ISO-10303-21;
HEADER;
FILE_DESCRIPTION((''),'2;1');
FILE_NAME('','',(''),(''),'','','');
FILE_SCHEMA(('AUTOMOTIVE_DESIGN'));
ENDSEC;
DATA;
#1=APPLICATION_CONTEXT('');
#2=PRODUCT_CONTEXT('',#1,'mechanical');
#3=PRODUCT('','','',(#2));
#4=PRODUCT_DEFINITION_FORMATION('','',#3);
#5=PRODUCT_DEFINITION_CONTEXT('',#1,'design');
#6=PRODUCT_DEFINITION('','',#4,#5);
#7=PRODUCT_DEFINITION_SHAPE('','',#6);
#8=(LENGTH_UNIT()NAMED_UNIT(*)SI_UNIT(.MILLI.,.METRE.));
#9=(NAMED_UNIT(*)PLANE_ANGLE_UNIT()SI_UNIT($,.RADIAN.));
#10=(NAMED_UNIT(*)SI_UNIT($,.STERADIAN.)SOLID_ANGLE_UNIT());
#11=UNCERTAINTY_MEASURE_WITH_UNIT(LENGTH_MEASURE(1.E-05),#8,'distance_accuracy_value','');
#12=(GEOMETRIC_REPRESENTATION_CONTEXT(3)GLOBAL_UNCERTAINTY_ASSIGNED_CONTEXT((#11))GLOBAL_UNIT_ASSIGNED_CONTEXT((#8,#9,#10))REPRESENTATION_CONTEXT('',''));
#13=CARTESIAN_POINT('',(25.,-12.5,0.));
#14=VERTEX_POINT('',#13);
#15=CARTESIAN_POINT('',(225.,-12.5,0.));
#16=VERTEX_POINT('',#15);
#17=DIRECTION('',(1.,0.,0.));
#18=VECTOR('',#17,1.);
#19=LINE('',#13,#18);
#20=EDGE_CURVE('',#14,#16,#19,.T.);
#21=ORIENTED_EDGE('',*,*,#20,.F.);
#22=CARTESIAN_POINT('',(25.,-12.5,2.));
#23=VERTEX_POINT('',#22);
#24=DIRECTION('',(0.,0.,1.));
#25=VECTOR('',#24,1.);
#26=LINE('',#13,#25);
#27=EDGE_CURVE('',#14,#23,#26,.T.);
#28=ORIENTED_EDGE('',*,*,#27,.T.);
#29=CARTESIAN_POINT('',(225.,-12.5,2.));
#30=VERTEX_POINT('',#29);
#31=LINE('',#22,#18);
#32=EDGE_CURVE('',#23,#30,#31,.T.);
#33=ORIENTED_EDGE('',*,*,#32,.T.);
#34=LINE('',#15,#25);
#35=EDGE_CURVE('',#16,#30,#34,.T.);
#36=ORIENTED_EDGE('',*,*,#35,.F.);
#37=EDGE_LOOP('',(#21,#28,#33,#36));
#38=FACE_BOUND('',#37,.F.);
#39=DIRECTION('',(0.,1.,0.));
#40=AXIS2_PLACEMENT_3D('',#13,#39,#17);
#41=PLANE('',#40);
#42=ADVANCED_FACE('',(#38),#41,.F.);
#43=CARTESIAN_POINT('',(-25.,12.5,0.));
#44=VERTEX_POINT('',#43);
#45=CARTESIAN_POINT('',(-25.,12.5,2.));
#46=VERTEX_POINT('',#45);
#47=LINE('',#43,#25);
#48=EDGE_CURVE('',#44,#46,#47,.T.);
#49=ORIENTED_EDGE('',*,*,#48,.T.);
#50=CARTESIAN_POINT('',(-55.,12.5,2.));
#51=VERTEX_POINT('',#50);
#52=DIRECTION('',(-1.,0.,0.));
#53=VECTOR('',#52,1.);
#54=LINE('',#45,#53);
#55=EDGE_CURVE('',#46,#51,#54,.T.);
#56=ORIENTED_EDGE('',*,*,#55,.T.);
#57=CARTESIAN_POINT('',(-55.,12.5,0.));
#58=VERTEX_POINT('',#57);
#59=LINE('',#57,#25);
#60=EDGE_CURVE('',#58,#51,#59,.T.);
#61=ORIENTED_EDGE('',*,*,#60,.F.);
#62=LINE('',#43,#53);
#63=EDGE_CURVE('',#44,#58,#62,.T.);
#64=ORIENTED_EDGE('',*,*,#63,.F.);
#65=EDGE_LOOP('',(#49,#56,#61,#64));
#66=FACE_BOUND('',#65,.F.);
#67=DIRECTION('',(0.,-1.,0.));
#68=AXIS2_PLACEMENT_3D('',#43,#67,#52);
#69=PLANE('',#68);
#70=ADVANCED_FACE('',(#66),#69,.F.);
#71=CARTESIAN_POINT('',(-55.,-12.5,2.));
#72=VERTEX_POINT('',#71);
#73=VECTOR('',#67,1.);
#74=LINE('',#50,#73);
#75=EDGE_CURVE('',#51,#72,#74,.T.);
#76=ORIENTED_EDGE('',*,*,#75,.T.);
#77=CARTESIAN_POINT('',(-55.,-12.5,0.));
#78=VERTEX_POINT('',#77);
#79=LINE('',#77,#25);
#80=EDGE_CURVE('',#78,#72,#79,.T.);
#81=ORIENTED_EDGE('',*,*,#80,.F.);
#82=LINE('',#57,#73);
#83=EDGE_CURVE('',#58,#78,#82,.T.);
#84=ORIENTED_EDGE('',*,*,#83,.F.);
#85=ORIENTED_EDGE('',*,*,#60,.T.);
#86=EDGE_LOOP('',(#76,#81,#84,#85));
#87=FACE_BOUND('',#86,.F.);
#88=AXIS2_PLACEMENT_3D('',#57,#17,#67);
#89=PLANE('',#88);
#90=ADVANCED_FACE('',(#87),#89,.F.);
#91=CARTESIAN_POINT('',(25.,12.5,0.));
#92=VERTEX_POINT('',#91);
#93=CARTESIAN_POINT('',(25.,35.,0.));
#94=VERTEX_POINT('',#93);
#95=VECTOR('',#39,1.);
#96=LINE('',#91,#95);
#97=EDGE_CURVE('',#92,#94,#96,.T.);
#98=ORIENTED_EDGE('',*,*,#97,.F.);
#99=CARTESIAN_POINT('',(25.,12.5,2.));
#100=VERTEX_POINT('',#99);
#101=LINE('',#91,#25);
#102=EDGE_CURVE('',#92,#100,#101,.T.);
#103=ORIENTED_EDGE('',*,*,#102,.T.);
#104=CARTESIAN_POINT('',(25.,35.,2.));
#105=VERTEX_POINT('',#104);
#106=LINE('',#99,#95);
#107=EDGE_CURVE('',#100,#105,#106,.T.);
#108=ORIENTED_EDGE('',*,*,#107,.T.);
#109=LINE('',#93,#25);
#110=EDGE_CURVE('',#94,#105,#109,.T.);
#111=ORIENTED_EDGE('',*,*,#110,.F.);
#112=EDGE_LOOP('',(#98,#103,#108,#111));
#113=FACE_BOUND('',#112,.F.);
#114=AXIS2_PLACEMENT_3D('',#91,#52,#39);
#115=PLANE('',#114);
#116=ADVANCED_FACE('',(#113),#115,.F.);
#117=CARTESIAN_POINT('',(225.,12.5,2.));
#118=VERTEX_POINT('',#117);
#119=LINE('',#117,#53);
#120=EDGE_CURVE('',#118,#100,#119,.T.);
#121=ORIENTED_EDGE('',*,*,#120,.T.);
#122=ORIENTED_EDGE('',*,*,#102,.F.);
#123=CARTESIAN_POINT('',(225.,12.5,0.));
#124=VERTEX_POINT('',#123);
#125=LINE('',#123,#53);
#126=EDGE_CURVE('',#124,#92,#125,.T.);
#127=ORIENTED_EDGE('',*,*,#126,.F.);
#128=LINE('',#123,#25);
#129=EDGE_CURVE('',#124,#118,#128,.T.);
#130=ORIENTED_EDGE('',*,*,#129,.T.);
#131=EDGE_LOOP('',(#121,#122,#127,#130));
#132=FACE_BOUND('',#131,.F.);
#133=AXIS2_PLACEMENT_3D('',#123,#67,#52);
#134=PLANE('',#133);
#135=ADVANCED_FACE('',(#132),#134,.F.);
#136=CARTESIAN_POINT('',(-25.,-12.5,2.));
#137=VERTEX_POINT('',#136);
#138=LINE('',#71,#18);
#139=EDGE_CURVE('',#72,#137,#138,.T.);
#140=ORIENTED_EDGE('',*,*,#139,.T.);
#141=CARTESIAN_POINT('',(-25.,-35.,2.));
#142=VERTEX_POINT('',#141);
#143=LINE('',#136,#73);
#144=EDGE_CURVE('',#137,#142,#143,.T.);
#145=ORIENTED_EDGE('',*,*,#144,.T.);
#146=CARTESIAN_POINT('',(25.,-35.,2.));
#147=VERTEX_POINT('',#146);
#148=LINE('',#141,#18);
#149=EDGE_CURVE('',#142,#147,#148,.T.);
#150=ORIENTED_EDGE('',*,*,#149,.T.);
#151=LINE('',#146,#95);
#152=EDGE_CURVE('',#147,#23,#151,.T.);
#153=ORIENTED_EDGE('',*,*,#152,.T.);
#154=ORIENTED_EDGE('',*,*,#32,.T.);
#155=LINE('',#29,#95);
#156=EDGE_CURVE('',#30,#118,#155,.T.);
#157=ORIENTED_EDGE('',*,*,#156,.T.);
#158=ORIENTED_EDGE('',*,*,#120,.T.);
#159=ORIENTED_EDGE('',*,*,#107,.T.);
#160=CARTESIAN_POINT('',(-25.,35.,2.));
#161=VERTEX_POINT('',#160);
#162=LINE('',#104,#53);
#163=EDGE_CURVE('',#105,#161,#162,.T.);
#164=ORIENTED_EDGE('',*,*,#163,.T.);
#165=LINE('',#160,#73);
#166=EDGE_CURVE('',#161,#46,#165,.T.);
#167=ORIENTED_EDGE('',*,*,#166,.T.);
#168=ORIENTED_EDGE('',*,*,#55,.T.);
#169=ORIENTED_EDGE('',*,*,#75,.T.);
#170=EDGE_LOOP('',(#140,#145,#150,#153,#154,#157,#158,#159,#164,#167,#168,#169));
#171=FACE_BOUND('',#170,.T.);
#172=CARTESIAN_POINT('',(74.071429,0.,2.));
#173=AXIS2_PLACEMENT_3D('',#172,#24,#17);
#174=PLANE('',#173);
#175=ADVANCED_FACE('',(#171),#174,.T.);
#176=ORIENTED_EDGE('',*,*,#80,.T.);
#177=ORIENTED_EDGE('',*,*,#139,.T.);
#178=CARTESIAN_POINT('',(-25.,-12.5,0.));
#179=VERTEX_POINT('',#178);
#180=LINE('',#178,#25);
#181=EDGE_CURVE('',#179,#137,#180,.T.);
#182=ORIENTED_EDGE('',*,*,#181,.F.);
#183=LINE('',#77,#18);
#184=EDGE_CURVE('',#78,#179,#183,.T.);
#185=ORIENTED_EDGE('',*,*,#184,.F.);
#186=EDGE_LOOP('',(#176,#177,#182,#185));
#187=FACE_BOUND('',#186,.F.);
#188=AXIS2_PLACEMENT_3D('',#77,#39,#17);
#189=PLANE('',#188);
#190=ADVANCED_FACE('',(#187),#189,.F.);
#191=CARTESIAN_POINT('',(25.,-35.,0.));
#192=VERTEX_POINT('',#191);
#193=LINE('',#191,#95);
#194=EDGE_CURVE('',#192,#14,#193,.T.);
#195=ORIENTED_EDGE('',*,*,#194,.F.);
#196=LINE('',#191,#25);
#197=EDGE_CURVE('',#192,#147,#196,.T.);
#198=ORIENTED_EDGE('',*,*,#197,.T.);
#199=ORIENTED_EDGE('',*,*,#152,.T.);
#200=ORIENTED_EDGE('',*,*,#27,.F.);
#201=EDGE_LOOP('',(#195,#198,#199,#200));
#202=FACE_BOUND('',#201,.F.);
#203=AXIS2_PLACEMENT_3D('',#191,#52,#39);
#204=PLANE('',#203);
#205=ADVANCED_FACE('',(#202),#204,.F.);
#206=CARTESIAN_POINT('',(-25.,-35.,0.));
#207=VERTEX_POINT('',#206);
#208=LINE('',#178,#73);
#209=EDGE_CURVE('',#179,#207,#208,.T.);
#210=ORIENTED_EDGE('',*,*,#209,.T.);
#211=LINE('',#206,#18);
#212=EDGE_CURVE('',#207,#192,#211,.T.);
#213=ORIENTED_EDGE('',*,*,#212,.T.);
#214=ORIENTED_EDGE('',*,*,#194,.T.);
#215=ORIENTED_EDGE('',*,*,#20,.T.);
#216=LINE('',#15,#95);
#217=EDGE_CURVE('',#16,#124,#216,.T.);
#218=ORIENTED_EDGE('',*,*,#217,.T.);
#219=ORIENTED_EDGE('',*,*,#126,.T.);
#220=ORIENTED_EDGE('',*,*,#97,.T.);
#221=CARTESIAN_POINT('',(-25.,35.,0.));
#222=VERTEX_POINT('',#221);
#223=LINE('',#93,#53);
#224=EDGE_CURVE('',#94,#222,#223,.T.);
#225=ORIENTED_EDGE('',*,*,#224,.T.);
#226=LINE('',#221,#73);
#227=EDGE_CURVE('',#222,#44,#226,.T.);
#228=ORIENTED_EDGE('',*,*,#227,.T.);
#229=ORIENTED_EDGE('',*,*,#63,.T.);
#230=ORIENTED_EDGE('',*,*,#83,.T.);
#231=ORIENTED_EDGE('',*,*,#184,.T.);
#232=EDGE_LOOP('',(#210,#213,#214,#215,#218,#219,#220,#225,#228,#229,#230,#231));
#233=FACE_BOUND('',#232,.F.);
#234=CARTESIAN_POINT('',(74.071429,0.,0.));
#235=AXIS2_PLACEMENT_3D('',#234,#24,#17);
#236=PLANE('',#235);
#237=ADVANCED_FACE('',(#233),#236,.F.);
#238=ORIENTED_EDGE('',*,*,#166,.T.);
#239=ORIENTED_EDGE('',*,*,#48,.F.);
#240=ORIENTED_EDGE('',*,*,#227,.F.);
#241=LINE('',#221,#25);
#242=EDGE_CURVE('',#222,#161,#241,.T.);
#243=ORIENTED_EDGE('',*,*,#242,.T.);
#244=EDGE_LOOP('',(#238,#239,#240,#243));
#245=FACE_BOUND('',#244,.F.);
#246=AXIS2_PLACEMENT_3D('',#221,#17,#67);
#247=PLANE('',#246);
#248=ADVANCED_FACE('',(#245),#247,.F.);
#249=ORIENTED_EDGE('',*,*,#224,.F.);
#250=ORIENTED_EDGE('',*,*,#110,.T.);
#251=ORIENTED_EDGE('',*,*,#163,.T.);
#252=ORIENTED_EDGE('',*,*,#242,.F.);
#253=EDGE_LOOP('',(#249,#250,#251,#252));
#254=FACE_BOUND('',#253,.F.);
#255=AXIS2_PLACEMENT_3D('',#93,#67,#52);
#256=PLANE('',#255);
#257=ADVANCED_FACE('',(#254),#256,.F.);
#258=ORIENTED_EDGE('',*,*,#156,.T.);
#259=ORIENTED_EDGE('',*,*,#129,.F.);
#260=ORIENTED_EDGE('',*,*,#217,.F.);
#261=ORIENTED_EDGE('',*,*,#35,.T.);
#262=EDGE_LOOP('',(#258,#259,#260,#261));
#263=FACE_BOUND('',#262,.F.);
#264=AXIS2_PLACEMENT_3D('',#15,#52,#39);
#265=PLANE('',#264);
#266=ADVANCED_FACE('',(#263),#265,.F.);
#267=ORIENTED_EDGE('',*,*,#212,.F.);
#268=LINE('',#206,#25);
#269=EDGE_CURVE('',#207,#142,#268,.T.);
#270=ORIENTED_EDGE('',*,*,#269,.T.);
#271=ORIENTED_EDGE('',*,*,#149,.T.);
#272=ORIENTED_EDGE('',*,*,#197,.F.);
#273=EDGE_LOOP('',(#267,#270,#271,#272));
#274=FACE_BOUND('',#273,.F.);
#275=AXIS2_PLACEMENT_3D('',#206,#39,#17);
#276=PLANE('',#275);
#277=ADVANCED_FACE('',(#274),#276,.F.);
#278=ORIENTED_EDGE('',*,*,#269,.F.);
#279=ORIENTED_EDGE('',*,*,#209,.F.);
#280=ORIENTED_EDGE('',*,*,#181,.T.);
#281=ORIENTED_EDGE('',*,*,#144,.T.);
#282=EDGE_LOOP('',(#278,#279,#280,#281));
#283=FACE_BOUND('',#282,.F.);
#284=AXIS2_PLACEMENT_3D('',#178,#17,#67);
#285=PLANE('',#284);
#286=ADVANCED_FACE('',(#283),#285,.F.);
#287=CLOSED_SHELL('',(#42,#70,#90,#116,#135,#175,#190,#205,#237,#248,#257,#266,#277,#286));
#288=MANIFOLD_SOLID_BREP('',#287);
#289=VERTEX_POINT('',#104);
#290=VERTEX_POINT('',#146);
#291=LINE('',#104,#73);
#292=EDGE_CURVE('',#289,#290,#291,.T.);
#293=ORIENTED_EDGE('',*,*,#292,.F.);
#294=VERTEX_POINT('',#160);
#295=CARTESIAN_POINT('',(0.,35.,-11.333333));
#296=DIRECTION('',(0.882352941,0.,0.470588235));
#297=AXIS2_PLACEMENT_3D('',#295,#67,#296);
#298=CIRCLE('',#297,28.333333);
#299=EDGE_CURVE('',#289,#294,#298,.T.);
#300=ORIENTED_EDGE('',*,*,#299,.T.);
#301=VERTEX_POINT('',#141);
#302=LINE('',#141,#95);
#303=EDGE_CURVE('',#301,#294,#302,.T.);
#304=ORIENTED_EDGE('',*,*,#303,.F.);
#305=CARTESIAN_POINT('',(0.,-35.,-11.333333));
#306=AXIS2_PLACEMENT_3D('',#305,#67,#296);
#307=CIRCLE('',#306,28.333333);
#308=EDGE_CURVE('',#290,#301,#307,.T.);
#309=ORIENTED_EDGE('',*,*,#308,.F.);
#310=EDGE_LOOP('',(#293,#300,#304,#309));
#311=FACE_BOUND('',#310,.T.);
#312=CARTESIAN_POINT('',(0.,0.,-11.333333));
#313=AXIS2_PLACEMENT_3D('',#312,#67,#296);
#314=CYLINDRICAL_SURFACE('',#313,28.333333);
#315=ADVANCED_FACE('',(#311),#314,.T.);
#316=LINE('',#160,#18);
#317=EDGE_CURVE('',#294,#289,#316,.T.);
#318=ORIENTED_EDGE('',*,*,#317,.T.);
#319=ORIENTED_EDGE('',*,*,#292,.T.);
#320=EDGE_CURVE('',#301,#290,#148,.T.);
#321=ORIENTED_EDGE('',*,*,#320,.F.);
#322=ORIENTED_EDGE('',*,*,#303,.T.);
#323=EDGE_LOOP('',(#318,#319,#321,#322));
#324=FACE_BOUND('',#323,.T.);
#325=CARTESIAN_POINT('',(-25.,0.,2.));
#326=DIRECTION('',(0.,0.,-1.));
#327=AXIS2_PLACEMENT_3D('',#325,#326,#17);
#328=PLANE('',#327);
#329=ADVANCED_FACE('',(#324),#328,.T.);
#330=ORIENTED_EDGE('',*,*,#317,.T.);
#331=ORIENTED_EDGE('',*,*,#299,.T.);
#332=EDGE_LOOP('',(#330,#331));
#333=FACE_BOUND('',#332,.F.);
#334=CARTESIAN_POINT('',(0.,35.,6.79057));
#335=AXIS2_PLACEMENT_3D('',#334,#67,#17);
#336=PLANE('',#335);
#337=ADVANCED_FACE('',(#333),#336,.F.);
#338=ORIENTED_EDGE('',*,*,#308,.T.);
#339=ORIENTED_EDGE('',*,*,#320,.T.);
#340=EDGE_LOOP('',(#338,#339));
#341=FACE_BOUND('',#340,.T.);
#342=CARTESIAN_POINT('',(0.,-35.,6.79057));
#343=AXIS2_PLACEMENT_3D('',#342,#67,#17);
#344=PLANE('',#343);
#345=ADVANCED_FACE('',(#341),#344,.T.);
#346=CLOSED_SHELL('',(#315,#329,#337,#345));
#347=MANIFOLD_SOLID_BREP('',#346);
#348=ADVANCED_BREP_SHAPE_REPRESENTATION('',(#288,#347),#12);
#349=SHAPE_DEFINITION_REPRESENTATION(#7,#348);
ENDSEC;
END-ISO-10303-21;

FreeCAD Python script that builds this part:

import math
import FreeCAD as App
import Part
import Sketcher

V = App.Vector
Q = App.Units.Quantity

doc = App.newDocument("Part")
params = doc.addObject("Spreadsheet::Sheet", "Params")
for row, (alias, value) in enumerate([
    ("sketch1_width", "50 mm"),
    ("sketch1_width2", "30 mm"),
    ("sketch1_width3", "200 mm"),
    ("sketch1_height", "25 mm"),
    ("sketch1_height2", "22.5 mm"),
    ("pad1_length", "2 mm"),
    ("sketch2_width", "50 mm"),
    ("pad2_length", "35 mm"),
    ("pad2_length2", "35 mm"),
], start=1):
    params.set(f"A{row}", alias)
    params.set(f"B{row}", "=" + value)
    params.setAlias(f"B{row}", alias)

body = doc.addObject("PartDesign::Body", "Body")

# Sketch on XY plane
sketch1 = body.newObject("Sketcher::SketchObject", "Sketch")
sketch1.AttachmentSupport = (doc.getObject("XY_Plane"), [""])
sketch1.MapMode = "FlatFace"
sketch1.addGeometry(Part.LineSegment(V(25, 35, 0), V(-25, 35, 0)), False)
sketch1.addGeometry(Part.LineSegment(V(-25, 35, 0), V(-25, 12.5, 0)), False)
sketch1.addGeometry(Part.LineSegment(V(-25, 12.5, 0), V(-55, 12.5, 0)), False)
sketch1.addGeometry(Part.LineSegment(V(-55, 12.5, 0), V(-55, -12.5, 0)), False)
sketch1.addGeometry(Part.LineSegment(V(-55, -12.5, 0), V(-25, -12.5, 0)), False)
sketch1.addGeometry(Part.LineSegment(V(-25, -12.5, 0), V(-25, -35, 0)), False)
sketch1.addGeometry(Part.LineSegment(V(-25, -35, 0), V(25, -35, 0)), False)
sketch1.addGeometry(Part.LineSegment(V(25, -35, 0), V(25, -12.5, 0)), False)
sketch1.addGeometry(Part.LineSegment(V(25, -12.5, 0), V(225, -12.5, 0)), False)
sketch1.addGeometry(Part.LineSegment(V(225, -12.5, 0), V(225, 12.5, 0)), False)
sketch1.addGeometry(Part.LineSegment(V(225, 12.5, 0), V(25, 12.5, 0)), False)
sketch1.addGeometry(Part.LineSegment(V(25, 12.5, 0), V(25, 35, 0)), False)
sketch1.addConstraint(Sketcher.Constraint("Coincident", 0, 2, 1, 1))
sketch1.addConstraint(Sketcher.Constraint("Coincident", 1, 2, 2, 1))
sketch1.addConstraint(Sketcher.Constraint("Coincident", 2, 2, 3, 1))
sketch1.addConstraint(Sketcher.Constraint("Coincident", 3, 2, 4, 1))
sketch1.addConstraint(Sketcher.Constraint("Coincident", 4, 2, 5, 1))
sketch1.addConstraint(Sketcher.Constraint("Coincident", 5, 2, 6, 1))
sketch1.addConstraint(Sketcher.Constraint("Coincident", 6, 2, 7, 1))
sketch1.addConstraint(Sketcher.Constraint("Coincident", 7, 2, 8, 1))
sketch1.addConstraint(Sketcher.Constraint("Coincident", 8, 2, 9, 1))
sketch1.addConstraint(Sketcher.Constraint("Coincident", 9, 2, 10, 1))
sketch1.addConstraint(Sketcher.Constraint("Coincident", 10, 2, 11, 1))
sketch1.addConstraint(Sketcher.Constraint("Coincident", 11, 2, 0, 1))
sketch1.addConstraint(Sketcher.Constraint("Horizontal", 0))
sketch1.addConstraint(Sketcher.Constraint("Vertical", 1))
sketch1.addConstraint(Sketcher.Constraint("Horizontal", 2))
sketch1.addConstraint(Sketcher.Constraint("Vertical", 3))
sketch1.addConstraint(Sketcher.Constraint("Horizontal", 4))
sketch1.addConstraint(Sketcher.Constraint("Vertical", 5))
sketch1.addConstraint(Sketcher.Constraint("Horizontal", 6))
sketch1.addConstraint(Sketcher.Constraint("Vertical", 7))
sketch1.addConstraint(Sketcher.Constraint("Horizontal", 8))
sketch1.addConstraint(Sketcher.Constraint("Vertical", 9))
sketch1.addConstraint(Sketcher.Constraint("Horizontal", 10))
sketch1.addConstraint(Sketcher.Constraint("Vertical", 11))
sketch1.addConstraint(Sketcher.Constraint("Symmetric", 0, 2, 6, 2, -1, 1))
sketch1.addConstraint(Sketcher.Constraint("Symmetric", 4, 2, 10, 2, -1, 1))
sketch1.addConstraint(Sketcher.Constraint("Symmetric", 4, 2, 7, 2, -2))
sketch1.addConstraint(Sketcher.Constraint("Horizontal", 2, 2, 9, 2))
sketch1.addConstraint(Sketcher.Constraint("DistanceX", 0, 2, 0, 1, Q("50 mm")))
sketch1.addConstraint(Sketcher.Constraint("DistanceX", 2, 2, 2, 1, Q("30 mm")))
sketch1.addConstraint(Sketcher.Constraint("DistanceX", 8, 1, 8, 2, Q("200 mm")))
sketch1.addConstraint(Sketcher.Constraint("DistanceY", 3, 2, 3, 1, Q("25 mm")))
sketch1.addConstraint(Sketcher.Constraint("DistanceY", 1, 2, 1, 1, Q("22.5 mm")))
sketch1.setExpression("Constraints[28]", "Params.sketch1_width")
sketch1.setExpression("Constraints[29]", "Params.sketch1_width2")
sketch1.setExpression("Constraints[30]", "Params.sketch1_width3")
sketch1.setExpression("Constraints[31]", "Params.sketch1_height")
sketch1.setExpression("Constraints[32]", "Params.sketch1_height2")
pad1 = body.newObject("PartDesign::Pad", "Pad")
pad1.Profile = sketch1
pad1.setExpression("Length", "Params.pad1_length")
body2 = doc.addObject("PartDesign::Body", "Body001")

# Sketch on XZ plane
sketch2 = body2.newObject("Sketcher::SketchObject", "Sketch001")
sketch2.AttachmentSupport = (doc.getObject("XZ_Plane001"), [""])
sketch2.MapMode = "FlatFace"
sketch2.addGeometry(Part.LineSegment(V(-25, 2, 0), V(25, 2, 0)), False)
sketch2.addGeometry(Part.ArcOfCircle(Part.Circle(V(0, -11.333333, 0), V(0, 0, 1), 28.333333), math.radians(28.072487), math.radians(151.927513)), False)
sketch2.addConstraint(Sketcher.Constraint("Coincident", 0, 1, 1, 2))
sketch2.addConstraint(Sketcher.Constraint("Coincident", 1, 1, 0, 2))
sketch2.addConstraint(Sketcher.Constraint("Horizontal", 0))
sketch2.addConstraint(Sketcher.Constraint("PointOnObject", 1, 3, -2))
sketch2.addConstraint(Sketcher.Constraint("DistanceX", 0, 1, 0, 2, Q("50 mm")))
sketch2.addConstraint(Sketcher.Constraint("DistanceY", -1, 1, 0, 1, Q("2 mm")))
sketch2.addConstraint(Sketcher.Constraint("Radius", 1, Q("28.333333 mm")))
sketch2.setExpression("Constraints[4]", "Params.sketch2_width")
pad2 = body2.newObject("PartDesign::Pad", "Pad001")
pad2.Profile = sketch2
pad2.Type = "TwoLengths"
pad2.setExpression("Length", "Params.pad2_length")
pad2.setExpression("Length2", "Params.pad2_length2")

doc.recompute()
